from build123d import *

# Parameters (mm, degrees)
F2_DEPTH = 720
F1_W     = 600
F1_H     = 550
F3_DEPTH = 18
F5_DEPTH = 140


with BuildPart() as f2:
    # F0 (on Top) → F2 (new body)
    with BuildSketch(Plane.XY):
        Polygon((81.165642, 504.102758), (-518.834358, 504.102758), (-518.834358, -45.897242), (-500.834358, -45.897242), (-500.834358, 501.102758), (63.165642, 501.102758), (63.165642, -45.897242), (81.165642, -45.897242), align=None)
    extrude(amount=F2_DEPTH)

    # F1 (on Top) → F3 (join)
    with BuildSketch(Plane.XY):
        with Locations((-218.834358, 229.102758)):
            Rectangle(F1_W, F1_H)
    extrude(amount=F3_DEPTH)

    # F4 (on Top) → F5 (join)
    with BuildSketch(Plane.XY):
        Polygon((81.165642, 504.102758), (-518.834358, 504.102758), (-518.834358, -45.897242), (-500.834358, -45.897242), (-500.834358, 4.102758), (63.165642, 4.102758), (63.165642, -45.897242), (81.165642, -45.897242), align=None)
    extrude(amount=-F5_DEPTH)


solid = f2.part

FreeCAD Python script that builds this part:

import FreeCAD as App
import Part
import Sketcher


def add_polygon(sketch, points):
    """Adds a closed chain of lines whose ends are joined by coincident constraints."""
    first, n = sketch.GeometryCount, len(points)
    for a, b in zip(points, points[1:] + points[:1]):
        sketch.addGeometry(Part.LineSegment(App.Vector(*a, 0), App.Vector(*b, 0)), False)
    for i in range(n):
        sketch.addConstraint(Sketcher.Constraint("Coincident", first + i, 2, first + (i + 1) % n, 1))

doc = App.newDocument("Part")
params = doc.addObject("Spreadsheet::Sheet", "Params")
for row, (alias, value) in enumerate([
    ("sketch1_width", "600 mm"),
    ("sketch1_width2", "18 mm"),
    ("sketch1_height", "550 mm"),
    ("sketch1_height2", "547 mm"),
    ("pad1_length", "720 mm"),
    ("sketch2_width", "600 mm"),
    ("sketch2_height", "550 mm"),
    ("pad2_length", "18 mm"),
    ("sketch3_width", "600 mm"),
    ("sketch3_width2", "18 mm"),
    ("sketch3_height", "550 mm"),
    ("sketch3_height2", "50 mm"),
    ("pad3_length", "140 mm"),
], start=1):
    params.set(f"A{row}", alias)
    params.set(f"B{row}", "=" + value)
    params.setAlias(f"B{row}", alias)

body = doc.addObject("PartDesign::Body", "Body")

sketch1 = body.newObject("Sketcher::SketchObject", "Sketch")
sketch1.AttachmentSupport = (doc.getObject("XY_Plane"), [""])
sketch1.MapMode = "FlatFace"
add_polygon(sketch1, [(81, 504), (-519, 504), (-519, -46), (-501, -46), (-501, 501), (63, 501), (63, -46), (81, -46)])
sketch1.addConstraint([
    Sketcher.Constraint("Horizontal", 0),
    Sketcher.Constraint("Vertical", 1),
    Sketcher.Constraint("Horizontal", 2),
    Sketcher.Constraint("Vertical", 3),
    Sketcher.Constraint("Horizontal", 4),
    Sketcher.Constraint("Vertical", 5),
    Sketcher.Constraint("Horizontal", 6),
    Sketcher.Constraint("Vertical", 7),
    Sketcher.Constraint("Horizontal", 2, 2, 5, 2),
    Sketcher.Constraint("Equal", 2, 6),
    Sketcher.Constraint("DistanceX", 0, 2, 0, 1, 600.0),
    Sketcher.Constraint("DistanceX", 2, 1, 2, 2, 18.0),
    Sketcher.Constraint("DistanceY", 1, 2, 1, 1, 550.0),
    Sketcher.Constraint("DistanceY", 3, 1, 3, 2, 547.0),
    Sketcher.Constraint("DistanceX", 0, 2, -1, 1, 518.834358),
    Sketcher.Constraint("DistanceY", -1, 1, 0, 2, 504.102758),
])
sketch1.setExpression("Constraints[18]", "Params.sketch1_width")
sketch1.setExpression("Constraints[19]", "Params.sketch1_width2")
sketch1.setExpression("Constraints[20]", "Params.sketch1_height")
sketch1.setExpression("Constraints[21]", "Params.sketch1_height2")
pad1 = body.newObject("PartDesign::Pad", "Pad")
pad1.Profile = sketch1
pad1.setExpression("Length", "Params.pad1_length")

sketch2 = body.newObject("Sketcher::SketchObject", "Sketch001")
sketch2.AttachmentSupport = (doc.getObject("XY_Plane"), [""])
sketch2.MapMode = "FlatFace"
add_polygon(sketch2, [(-519, 504), (-519, -46), (81, -46), (81, 504)])
sketch2.addConstraint([
    Sketcher.Constraint("Vertical", 0),
    Sketcher.Constraint("Horizontal", 1),
    Sketcher.Constraint("Vertical", 2),
    Sketcher.Constraint("Horizontal", 3),
    Sketcher.Constraint("DistanceX", 1, 1, 1, 2, 600.0),
    Sketcher.Constraint("DistanceY", 0, 2, 0, 1, 550.0),
    Sketcher.Constraint("DistanceX", 0, 2, -1, 1, 518.834358),
    Sketcher.Constraint("DistanceY", -1, 1, 2, 2, 504.102758),
])
sketch2.setExpression("Constraints[8]", "Params.sketch2_width")
sketch2.setExpression("Constraints[9]", "Params.sketch2_height")
pad2 = body.newObject("PartDesign::Pad", "Pad001")
pad2.Profile = sketch2
pad2.setExpression("Length", "Params.pad2_length")

sketch3 = body.newObject("Sketcher::SketchObject", "Sketch002")
sketch3.AttachmentSupport = (doc.getObject("XY_Plane"), [""])
sketch3.MapMode = "FlatFace"
add_polygon(sketch3, [(81, 504), (-519, 504), (-519, -46), (-501, -46), (-501, 4), (63, 4), (63, -46), (81, -46)])
sketch3.addConstraint([
    Sketcher.Constraint("Horizontal", 0),
    Sketcher.Constraint("Vertical", 1),
    Sketcher.Constraint("Horizontal", 2),
    Sketcher.Constraint("Vertical", 3),
    Sketcher.Constraint("Horizontal", 4),
    Sketcher.Constraint("Vertical", 5),
    Sketcher.Constraint("Horizontal", 6),
    Sketcher.Constraint("Vertical", 7),
    Sketcher.Constraint("Horizontal", 2, 2, 5, 2),
    Sketcher.Constraint("Equal", 2, 6),
    Sketcher.Constraint("DistanceX", 0, 2, 0, 1, 600.0),
    Sketcher.Constraint("DistanceX", 2, 1, 2, 2, 18.0),
    Sketcher.Constraint("DistanceY", 1, 2, 1, 1, 550.0),
    Sketcher.Constraint("DistanceY", 3, 1, 3, 2, 50.0),
    Sketcher.Constraint("DistanceX", 0, 2, -1, 1, 518.834358),
    Sketcher.Constraint("DistanceY", -1, 1, 0, 2, 504.102758),
])
sketch3.setExpression("Constraints[18]", "Params.sketch3_width")
sketch3.setExpression("Constraints[19]", "Params.sketch3_width2")
sketch3.setExpression("Constraints[20]", "Params.sketch3_height")
sketch3.setExpression("Constraints[21]", "Params.sketch3_height2")
pad3 = body.newObject("PartDesign::Pad", "Pad002")
pad3.Profile = sketch3
pad3.setExpression("Length", "Params.pad3_length")
pad3.Reversed = True

doc.recompute()
